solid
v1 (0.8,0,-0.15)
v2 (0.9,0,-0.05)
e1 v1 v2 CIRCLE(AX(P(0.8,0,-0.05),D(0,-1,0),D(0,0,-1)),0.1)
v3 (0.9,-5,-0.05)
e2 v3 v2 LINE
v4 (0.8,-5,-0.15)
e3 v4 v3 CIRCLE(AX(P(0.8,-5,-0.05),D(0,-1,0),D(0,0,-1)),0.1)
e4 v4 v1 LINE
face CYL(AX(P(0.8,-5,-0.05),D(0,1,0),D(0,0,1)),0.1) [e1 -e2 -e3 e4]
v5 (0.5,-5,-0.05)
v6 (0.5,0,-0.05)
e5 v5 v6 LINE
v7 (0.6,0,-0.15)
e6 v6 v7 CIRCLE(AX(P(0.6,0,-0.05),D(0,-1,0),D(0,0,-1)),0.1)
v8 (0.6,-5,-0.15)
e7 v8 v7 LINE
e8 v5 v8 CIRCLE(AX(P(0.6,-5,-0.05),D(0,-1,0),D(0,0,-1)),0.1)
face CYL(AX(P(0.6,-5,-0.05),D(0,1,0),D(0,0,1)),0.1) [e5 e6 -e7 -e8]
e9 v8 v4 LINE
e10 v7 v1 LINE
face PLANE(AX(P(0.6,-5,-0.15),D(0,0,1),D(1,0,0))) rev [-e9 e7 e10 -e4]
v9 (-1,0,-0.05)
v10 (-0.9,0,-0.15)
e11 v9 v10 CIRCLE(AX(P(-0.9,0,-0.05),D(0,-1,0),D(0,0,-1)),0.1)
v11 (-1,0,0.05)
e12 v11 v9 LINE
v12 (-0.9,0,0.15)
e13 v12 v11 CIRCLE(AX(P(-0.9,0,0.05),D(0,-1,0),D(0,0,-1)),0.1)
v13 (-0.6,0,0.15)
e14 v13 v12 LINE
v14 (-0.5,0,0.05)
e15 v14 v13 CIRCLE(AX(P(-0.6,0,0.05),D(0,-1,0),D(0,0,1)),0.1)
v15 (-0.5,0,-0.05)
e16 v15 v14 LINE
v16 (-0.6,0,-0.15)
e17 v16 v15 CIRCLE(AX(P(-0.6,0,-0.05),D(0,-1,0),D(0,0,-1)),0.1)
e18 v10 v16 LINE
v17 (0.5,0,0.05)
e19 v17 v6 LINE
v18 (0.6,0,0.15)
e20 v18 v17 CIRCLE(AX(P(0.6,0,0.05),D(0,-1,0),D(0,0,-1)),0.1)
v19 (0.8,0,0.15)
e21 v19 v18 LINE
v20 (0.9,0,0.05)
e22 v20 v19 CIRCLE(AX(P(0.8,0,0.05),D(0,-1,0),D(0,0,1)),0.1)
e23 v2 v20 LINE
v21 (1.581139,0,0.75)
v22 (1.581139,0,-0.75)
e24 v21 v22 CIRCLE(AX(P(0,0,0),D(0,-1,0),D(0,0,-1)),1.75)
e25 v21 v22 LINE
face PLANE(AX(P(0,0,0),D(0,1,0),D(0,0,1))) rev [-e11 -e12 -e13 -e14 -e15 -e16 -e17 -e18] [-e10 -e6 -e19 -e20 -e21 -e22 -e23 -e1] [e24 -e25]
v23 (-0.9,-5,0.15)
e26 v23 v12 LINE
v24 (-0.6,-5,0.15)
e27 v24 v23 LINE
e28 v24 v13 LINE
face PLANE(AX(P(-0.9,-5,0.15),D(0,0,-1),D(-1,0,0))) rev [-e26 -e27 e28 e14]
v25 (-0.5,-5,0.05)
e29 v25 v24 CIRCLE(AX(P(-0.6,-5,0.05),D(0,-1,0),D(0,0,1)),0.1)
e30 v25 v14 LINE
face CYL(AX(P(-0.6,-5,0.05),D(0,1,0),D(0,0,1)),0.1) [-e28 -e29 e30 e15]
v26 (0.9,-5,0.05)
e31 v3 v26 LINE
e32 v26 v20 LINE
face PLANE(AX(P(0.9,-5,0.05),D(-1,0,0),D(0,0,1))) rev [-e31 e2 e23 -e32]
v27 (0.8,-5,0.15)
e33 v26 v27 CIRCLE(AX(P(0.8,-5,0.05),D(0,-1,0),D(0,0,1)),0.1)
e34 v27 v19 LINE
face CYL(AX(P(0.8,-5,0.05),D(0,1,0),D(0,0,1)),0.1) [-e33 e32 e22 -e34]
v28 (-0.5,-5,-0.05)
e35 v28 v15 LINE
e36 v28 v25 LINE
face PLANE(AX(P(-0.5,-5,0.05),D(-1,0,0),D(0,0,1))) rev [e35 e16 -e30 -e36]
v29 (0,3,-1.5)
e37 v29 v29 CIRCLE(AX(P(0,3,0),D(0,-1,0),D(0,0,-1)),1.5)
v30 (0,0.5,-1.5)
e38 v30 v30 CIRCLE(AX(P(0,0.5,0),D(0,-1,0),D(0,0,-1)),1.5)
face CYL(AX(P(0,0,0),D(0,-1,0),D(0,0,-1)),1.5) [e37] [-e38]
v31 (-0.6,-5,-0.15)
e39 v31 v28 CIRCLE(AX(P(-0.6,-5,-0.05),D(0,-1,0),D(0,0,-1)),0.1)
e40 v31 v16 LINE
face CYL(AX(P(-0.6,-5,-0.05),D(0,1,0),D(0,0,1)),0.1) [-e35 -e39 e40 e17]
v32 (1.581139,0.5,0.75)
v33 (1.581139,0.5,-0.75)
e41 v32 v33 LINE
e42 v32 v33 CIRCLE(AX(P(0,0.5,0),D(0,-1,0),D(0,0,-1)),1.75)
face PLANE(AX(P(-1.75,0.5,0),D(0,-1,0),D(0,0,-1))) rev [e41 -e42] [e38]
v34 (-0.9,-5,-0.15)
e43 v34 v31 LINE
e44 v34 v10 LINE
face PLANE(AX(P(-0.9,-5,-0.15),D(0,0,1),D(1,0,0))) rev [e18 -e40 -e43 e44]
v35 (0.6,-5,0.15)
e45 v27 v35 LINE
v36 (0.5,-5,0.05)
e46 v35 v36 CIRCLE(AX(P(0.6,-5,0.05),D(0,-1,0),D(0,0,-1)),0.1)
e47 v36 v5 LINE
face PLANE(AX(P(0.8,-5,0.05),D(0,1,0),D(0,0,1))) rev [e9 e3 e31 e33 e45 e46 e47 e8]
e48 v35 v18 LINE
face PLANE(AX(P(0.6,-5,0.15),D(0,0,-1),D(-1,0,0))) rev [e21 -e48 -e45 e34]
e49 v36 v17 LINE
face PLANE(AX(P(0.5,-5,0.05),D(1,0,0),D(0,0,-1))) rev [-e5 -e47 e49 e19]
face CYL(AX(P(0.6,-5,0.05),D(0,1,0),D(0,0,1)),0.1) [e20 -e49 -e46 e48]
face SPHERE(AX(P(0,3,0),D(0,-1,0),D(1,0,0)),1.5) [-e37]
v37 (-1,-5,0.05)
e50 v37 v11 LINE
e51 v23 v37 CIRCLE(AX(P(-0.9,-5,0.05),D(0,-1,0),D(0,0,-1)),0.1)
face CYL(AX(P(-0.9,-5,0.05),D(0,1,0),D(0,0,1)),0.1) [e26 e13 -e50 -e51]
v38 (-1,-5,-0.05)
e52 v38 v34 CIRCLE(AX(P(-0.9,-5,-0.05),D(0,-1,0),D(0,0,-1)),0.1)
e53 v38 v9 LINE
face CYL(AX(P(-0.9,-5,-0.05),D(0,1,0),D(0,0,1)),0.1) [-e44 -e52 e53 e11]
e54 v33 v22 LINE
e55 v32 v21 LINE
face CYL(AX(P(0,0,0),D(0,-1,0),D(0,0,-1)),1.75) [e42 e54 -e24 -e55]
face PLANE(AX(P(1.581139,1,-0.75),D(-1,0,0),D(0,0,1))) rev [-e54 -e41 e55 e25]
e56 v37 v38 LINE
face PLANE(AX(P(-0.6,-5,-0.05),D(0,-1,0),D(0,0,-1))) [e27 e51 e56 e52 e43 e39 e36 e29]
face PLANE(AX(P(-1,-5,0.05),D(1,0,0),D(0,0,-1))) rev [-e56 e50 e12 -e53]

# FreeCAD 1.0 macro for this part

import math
import FreeCAD as App
import Part
import Sketcher
from FreeCAD import Vector

doc = App.newDocument("Part")
body = doc.addObject("PartDesign::Body", "Body")

# Sketch on XY plane
sketch1 = body.newObject("Sketcher::SketchObject", "Sketch")
sketch1.AttachmentSupport = (doc.getObject("XY_Plane"), [""])
sketch1.MapMode = "FlatFace"
sketch1.addGeometry([
    Part.LineSegment(Vector(-1.75, 0, 0), Vector(0, 0, 0)),  # 0
    Part.LineSegment(Vector(0, 0, 0), Vector(0, 4.5, 0)),  # 1
    Part.ArcOfCircle(Part.Circle(Vector(0, 3, 0), Vector(0, 0, 1), 1.5), math.radians(90), math.radians(180)),  # 2
    Part.LineSegment(Vector(-1.5, 3, 0), Vector(-1.5, 0.5, 0)),  # 3
    Part.LineSegment(Vector(-1.5, 0.5, 0), Vector(-1.75, 0.5, 0)),  # 4
    Part.LineSegment(Vector(-1.75, 0.5, 0), Vector(-1.75, 0, 0)),  # 5
], False)
sketch1.addConstraint([
    Sketcher.Constraint("Coincident", 0, 2, 1, 1),
    Sketcher.Constraint("Coincident", 1, 2, 2, 1),
    Sketcher.Constraint("Tangent", 2, 2, 3, 1),
    Sketcher.Constraint("Coincident", 3, 2, 4, 1),
    Sketcher.Constraint("Coincident", 4, 2, 5, 1),
    Sketcher.Constraint("Coincident", 5, 2, 0, 1),
    Sketcher.Constraint("Horizontal", 0),
    Sketcher.Constraint("Vertical", 1),
    Sketcher.Constraint("Vertical", 3),
    Sketcher.Constraint("Horizontal", 4),
    Sketcher.Constraint("Vertical", 5),
    Sketcher.Constraint("Coincident", 0, 2, -1, 1),
    Sketcher.Constraint("PointOnObject", 2, 3, -2),
    Sketcher.Constraint("Radius", 2, 1.5),
    Sketcher.Constraint("DistanceY", 1, 1, 1, 2, 4.5),
    Sketcher.Constraint("DistanceY", 3, 2, 3, 1, 2.5),
    Sketcher.Constraint("DistanceX", 0, 1, 0, 2, 1.75),
])
revolution = body.newObject("PartDesign::Revolution", "Revolution")
revolution.Profile = sketch1
revolution.ReferenceAxis = (sketch1, ["V_Axis"])
revolution.Angle = 360

# Sketch on XZ plane
sketch2 = body.newObject("Sketcher::SketchObject", "Sketch001")
sketch2.AttachmentSupport = (doc.getObject("XZ_Plane"), [""])
sketch2.MapMode = "FlatFace"
sketch2.AttachmentOffset = App.Placement(Vector(0, 0, -1), App.Rotation())
sketch2.addGeometry([
    Part.LineSegment(Vector(1.6, 0.8, 0), Vector(1.6, -0.8, 0)),
    Part.ArcOfCircle(Part.Circle(Vector(0, 0, 0), Vector(0, 0, 1), 1.7), math.radians(-25), math.radians(25)),
], False)
sketch2.addConstraint([
    Sketcher.Constraint("Coincident", 0, 1, 1, 2),
    Sketcher.Constraint("Coincident", 1, 1, 0, 2),
    Sketcher.Constraint("Vertical", 0),
    Sketcher.Constraint("Coincident", 1, 3, -1, 1),
    Sketcher.Constraint("Radius", 1, 1.75),
    Sketcher.Constraint("DistanceY", 0, 2, 0, 1, 1.5),
])
pocket1 = body.newObject("PartDesign::Pocket", "Pocket")
pocket1.Profile = sketch2
pocket1.Length = 1
pocket1.Reversed = True

# Sketch on XZ plane
sketch3 = body.newObject("Sketcher::SketchObject", "Sketch002")
sketch3.AttachmentSupport = (doc.getObject("XZ_Plane"), [""])
sketch3.MapMode = "FlatFace"
sketch3.addGeometry([
    Part.LineSegment(Vector(0.8, 0.15, 0), Vector(0.6, 0.15, 0)),  # 0
    Part.ArcOfCircle(Part.Circle(Vector(0.6, 0.05, 0), Vector(0, 0, 1), 0.1), math.radians(90), math.radians(180)),  # 1
    Part.LineSegment(Vector(0.5, 0.05, 0), Vector(0.5, -0.05, 0)),  # 2
    Part.ArcOfCircle(Part.Circle(Vector(0.6, -0.05, 0), Vector(0, 0, 1), 0.1), math.radians(180), math.radians(270)),  # 3
    Part.LineSegment(Vector(0.6, -0.15, 0), Vector(0.8, -0.15, 0)),  # 4
    Part.ArcOfCircle(Part.Circle(Vector(0.8, -0.05, 0), Vector(0, 0, 1), 0.1), math.radians(-90), math.radians(0)),  # 5
    Part.LineSegment(Vector(0.9, -0.05, 0), Vector(0.9, 0.05, 0)),  # 6
    Part.ArcOfCircle(Part.Circle(Vector(0.8, 0.05, 0), Vector(0, 0, 1), 0.1), math.radians(0), math.radians(90)),  # 7
    Part.LineSegment(Vector(-0.6, 0.15, 0), Vector(-0.9, 0.15, 0)),  # 8
    Part.ArcOfCircle(Part.Circle(Vector(-0.9, 0.05, 0), Vector(0, 0, 1), 0.1), math.radians(90), math.radians(180)),  # 9
    Part.LineSegment(Vector(-1, 0.05, 0), Vector(-1, -0.05, 0)),  # 10
    Part.ArcOfCircle(Part.Circle(Vector(-0.9, -0.05, 0), Vector(0, 0, 1), 0.1), math.radians(180), math.radians(270)),  # 11
    Part.LineSegment(Vector(-0.9, -0.15, 0), Vector(-0.6, -0.15, 0)),  # 12
    Part.ArcOfCircle(Part.Circle(Vector(-0.6, -0.05, 0), Vector(0, 0, 1), 0.1), math.radians(-90), math.radians(0)),  # 13
    Part.LineSegment(Vector(-0.5, -0.05, 0), Vector(-0.5, 0.05, 0)),  # 14
    Part.ArcOfCircle(Part.Circle(Vector(-0.6, 0.05, 0), Vector(0, 0, 1), 0.1), math.radians(0), math.radians(90)),  # 15
], False)
sketch3.addConstraint([
    Sketcher.Constraint("Tangent", 0, 2, 1, 1),
    Sketcher.Constraint("Tangent", 1, 2, 2, 1),
    Sketcher.Constraint("Tangent", 2, 2, 3, 1),
    Sketcher.Constraint("Tangent", 3, 2, 4, 1),
    Sketcher.Constraint("Tangent", 4, 2, 5, 1),
    Sketcher.Constraint("Tangent", 5, 2, 6, 1),
    Sketcher.Constraint("Tangent", 6, 2, 7, 1),
    Sketcher.Constraint("Tangent", 7, 2, 0, 1),
    Sketcher.Constraint("Tangent", 8, 2, 9, 1),
    Sketcher.Constraint("Tangent", 9, 2, 10, 1),
    Sketcher.Constraint("Tangent", 10, 2, 11, 1),
    Sketcher.Constraint("Tangent", 11, 2, 12, 1),
    Sketcher.Constraint("Tangent", 12, 2, 13, 1),
    Sketcher.Constraint("Tangent", 13, 2, 14, 1),
    Sketcher.Constraint("Tangent", 14, 2, 15, 1),
    Sketcher.Constraint("Tangent", 15, 2, 8, 1),
    Sketcher.Constraint("Horizontal", 0),
    Sketcher.Constraint("Vertical", 2),
    Sketcher.Constraint("Horizontal", 4),
    Sketcher.Constraint("Vertical", 6),
    Sketcher.Constraint("Horizontal", 8),
    Sketcher.Constraint("Vertical", 10),
    Sketcher.Constraint("Horizontal", 12),
    Sketcher.Constraint("Vertical", 14),
    Sketcher.Constraint("Equal", 1, 3),
    Sketcher.Constraint("Equal", 3, 5),
    Sketcher.Constraint("Equal", 5, 7),
    Sketcher.Constraint("Equal", 7, 9),
    Sketcher.Constraint("Equal", 9, 11),
    Sketcher.Constraint("Equal", 11, 13),
    Sketcher.Constraint("Equal", 13, 15),
    Sketcher.Constraint("Symmetric", 1, 3, 13, 3, -1, 1),
    Sketcher.Constraint("Horizontal", 7, 3, 9, 3),
    Sketcher.Constraint("Horizontal", 5, 3, 11, 3),
    Sketcher.Constraint("Radius", 1, 0.1),
    Sketcher.Constraint("DistanceX", 0, 2, 0, 1, 0.2),
    Sketcher.Constraint("DistanceX", 8, 2, 8, 1, 0.3),
    Sketcher.Constraint("DistanceY", 2, 2, 2, 1, 0.1),
    Sketcher.Constraint("DistanceX", 9, 2, -1, 1, 1.0),
])
pad1 = body.newObject("PartDesign::Pad", "Pad")
pad1.Profile = sketch3
pad1.Length = 5

doc.recompute()
